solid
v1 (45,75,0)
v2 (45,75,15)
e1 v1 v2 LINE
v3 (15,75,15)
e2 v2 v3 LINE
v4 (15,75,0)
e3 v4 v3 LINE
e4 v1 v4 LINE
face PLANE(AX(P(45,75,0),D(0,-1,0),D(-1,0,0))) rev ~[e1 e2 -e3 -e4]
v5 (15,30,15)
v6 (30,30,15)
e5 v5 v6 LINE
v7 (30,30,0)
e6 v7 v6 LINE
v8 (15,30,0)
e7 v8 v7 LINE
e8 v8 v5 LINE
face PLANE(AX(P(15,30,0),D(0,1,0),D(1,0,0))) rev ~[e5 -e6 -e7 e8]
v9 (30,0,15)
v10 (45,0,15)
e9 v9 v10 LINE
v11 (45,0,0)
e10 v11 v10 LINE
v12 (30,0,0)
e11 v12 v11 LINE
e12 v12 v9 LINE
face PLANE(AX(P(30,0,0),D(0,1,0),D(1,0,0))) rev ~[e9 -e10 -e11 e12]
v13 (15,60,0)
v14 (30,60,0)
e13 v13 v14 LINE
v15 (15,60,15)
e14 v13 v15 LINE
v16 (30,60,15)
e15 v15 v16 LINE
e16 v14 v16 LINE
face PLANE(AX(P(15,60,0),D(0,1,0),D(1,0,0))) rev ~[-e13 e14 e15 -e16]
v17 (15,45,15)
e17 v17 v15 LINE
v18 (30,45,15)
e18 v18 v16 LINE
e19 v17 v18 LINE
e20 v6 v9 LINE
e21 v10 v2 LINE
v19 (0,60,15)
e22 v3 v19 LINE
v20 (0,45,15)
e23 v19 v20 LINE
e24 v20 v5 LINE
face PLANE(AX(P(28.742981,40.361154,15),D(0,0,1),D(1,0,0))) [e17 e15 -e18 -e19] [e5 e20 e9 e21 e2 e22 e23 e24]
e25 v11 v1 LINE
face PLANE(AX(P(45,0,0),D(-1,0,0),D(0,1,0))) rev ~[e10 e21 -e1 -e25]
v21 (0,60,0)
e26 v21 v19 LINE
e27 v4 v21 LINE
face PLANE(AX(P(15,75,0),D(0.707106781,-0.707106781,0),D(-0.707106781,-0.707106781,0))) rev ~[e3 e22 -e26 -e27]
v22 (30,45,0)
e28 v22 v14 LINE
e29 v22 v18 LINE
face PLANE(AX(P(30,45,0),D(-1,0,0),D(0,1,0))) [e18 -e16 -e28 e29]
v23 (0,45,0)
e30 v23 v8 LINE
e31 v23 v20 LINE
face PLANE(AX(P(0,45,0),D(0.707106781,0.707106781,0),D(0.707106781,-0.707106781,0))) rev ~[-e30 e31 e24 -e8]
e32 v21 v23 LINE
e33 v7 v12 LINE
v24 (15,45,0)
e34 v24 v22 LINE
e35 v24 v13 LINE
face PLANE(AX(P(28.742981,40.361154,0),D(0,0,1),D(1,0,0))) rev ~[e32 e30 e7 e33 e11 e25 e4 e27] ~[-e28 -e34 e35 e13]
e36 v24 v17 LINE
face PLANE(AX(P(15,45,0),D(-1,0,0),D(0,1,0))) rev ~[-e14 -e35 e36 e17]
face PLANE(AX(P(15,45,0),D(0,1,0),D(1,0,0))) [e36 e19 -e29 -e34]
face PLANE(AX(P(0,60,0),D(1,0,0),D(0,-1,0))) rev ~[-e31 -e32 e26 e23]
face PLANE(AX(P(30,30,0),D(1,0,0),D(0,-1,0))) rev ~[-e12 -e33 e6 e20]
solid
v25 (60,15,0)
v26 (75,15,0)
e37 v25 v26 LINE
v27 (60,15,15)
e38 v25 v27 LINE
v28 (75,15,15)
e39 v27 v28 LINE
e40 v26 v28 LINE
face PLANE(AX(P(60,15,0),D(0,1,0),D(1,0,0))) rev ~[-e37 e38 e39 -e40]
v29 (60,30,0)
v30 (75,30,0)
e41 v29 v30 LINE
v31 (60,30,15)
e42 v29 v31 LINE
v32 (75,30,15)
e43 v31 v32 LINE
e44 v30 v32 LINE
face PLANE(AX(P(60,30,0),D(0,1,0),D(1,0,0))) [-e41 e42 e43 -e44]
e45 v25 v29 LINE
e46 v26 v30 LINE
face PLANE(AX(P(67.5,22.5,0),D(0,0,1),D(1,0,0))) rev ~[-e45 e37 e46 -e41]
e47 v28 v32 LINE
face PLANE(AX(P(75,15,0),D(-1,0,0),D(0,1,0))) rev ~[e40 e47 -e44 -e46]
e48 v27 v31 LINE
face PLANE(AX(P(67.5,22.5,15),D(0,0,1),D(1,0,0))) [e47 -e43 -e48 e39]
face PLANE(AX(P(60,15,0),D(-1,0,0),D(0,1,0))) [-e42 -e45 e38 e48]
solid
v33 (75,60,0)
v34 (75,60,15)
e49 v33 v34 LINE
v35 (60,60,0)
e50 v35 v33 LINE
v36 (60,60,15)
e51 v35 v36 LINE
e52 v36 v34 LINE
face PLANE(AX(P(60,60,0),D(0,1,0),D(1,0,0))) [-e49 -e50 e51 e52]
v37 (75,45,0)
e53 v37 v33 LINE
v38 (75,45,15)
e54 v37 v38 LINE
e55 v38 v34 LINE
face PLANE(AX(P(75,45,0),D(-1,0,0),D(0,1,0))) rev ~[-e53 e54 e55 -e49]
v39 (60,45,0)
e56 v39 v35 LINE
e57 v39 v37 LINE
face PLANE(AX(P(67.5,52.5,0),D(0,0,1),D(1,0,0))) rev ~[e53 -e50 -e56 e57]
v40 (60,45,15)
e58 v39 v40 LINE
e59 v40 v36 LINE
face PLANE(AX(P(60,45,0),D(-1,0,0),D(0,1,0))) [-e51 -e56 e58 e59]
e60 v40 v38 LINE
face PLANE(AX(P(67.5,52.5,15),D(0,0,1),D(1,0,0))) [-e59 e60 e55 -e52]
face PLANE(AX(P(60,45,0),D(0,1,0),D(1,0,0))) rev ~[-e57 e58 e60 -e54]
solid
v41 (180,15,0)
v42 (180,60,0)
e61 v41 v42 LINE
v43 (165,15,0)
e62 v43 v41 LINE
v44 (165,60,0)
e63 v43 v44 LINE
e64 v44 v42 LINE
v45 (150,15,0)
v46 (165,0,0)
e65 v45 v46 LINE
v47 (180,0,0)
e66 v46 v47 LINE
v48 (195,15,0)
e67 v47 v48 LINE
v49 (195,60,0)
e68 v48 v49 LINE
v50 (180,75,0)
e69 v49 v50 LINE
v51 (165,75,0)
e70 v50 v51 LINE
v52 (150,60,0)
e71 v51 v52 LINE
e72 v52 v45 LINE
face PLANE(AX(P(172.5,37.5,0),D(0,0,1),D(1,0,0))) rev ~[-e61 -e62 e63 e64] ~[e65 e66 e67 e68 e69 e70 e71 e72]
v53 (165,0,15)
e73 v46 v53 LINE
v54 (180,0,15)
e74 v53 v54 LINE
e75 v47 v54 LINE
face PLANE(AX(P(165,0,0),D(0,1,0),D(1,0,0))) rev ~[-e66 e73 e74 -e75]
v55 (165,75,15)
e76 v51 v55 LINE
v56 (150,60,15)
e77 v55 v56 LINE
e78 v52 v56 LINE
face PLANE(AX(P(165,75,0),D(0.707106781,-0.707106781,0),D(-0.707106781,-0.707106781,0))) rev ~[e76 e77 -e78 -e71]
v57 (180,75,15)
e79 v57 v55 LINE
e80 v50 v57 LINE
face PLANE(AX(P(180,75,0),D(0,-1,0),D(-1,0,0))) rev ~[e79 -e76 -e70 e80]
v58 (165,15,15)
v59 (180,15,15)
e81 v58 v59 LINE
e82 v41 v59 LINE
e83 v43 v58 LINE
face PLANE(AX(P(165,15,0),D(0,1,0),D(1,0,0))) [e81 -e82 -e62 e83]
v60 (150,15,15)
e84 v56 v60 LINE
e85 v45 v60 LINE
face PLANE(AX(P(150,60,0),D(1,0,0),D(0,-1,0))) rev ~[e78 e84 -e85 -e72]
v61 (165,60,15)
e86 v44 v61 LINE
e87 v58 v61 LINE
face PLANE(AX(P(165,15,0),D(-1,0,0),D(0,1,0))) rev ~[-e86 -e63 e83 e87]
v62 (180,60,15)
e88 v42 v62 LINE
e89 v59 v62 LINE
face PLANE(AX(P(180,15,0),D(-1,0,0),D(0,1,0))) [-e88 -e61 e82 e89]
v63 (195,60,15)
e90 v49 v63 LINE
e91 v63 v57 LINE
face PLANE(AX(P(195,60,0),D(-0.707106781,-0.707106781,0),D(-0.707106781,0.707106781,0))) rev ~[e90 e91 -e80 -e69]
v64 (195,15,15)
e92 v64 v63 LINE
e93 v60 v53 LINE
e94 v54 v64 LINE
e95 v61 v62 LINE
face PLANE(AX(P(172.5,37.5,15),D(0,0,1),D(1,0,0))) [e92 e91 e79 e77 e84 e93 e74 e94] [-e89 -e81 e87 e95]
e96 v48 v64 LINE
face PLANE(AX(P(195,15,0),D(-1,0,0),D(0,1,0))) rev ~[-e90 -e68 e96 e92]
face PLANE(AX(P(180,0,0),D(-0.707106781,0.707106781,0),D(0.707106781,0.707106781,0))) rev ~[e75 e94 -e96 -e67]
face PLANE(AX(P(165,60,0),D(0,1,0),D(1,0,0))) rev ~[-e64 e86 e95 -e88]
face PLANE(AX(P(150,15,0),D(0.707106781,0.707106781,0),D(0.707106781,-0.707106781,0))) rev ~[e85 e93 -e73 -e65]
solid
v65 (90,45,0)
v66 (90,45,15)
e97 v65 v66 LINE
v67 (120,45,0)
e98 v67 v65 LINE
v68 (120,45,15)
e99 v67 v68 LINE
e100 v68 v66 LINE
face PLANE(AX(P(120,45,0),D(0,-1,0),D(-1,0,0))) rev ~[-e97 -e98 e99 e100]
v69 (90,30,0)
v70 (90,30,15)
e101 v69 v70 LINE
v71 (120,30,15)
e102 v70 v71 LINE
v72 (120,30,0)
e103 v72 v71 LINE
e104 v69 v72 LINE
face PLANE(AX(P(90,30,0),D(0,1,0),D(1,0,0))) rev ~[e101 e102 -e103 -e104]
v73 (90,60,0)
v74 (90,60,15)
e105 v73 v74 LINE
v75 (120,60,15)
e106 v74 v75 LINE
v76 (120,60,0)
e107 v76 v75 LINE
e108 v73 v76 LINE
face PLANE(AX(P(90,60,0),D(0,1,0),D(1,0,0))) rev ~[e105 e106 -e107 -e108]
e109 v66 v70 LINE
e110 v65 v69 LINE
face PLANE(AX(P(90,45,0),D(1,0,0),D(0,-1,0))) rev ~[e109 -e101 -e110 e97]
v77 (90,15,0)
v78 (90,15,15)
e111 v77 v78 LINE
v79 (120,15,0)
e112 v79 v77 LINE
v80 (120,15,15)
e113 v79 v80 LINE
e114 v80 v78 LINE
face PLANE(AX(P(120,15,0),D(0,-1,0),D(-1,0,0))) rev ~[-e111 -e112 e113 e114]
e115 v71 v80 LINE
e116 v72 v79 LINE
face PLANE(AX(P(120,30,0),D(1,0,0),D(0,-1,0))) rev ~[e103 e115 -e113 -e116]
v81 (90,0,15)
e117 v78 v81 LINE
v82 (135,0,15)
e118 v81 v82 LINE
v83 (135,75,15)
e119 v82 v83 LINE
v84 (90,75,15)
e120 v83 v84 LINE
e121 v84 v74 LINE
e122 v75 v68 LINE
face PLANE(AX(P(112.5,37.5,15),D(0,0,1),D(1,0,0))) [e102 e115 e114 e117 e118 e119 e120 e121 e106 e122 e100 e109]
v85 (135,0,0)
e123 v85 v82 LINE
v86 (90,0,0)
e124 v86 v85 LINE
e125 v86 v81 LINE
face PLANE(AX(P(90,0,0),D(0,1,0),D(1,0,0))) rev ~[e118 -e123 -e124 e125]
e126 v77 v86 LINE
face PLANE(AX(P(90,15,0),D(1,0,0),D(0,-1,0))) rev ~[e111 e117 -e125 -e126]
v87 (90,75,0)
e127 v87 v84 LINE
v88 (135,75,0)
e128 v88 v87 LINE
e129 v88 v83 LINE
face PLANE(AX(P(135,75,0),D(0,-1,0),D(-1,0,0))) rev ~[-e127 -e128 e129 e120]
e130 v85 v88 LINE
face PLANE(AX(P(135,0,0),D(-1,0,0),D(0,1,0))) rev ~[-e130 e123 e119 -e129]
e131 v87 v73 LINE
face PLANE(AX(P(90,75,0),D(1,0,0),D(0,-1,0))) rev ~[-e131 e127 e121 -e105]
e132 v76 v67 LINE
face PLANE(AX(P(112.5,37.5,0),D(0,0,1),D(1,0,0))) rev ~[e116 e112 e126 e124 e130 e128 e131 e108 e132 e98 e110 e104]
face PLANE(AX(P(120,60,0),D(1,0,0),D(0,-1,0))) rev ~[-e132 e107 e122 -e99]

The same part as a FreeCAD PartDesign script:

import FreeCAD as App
import Part
import Sketcher

V = App.Vector
Q = App.Units.Quantity


def add_polygon(sketch, points):
    """Adds a closed chain of lines whose ends are joined by coincident constraints."""
    first, n = sketch.GeometryCount, len(points)
    for a, b in zip(points, points[1:] + points[:1]):
        sketch.addGeometry(Part.LineSegment(App.Vector(*a, 0), App.Vector(*b, 0)), False)
    for i in range(n):
        sketch.addConstraint(Sketcher.Constraint("Coincident", first + i, 2, first + (i + 1) % n, 1))

doc = App.newDocument("Part")
body = doc.addObject("PartDesign::Body", "Body")

sketch1 = doc.addObject("Sketcher::SketchObject", "Sketch")
body.addObject(sketch1)
sketch1.AttachmentSupport = (doc.XY_Plane, [""])
sketch1.MapMode = "FlatFace"
add_polygon(sketch1, [(30, 0), (45, 0), (45, 75), (15, 75), (0, 60), (0, 45), (15, 30), (30, 30)])
add_polygon(sketch1, [(30, 45), (15, 45), (15, 60), (30, 60)])
sketch1.addConstraint([
    Sketcher.Constraint("Horizontal", 0),
    Sketcher.Constraint("Vertical", 1),
    Sketcher.Constraint("Horizontal", 2),
    Sketcher.Constraint("Vertical", 4),
    Sketcher.Constraint("Horizontal", 6),
    Sketcher.Constraint("Vertical", 7),
    Sketcher.Constraint("Horizontal", 8),
    Sketcher.Constraint("Vertical", 9),
    Sketcher.Constraint("Horizontal", 10),
    Sketcher.Constraint("Vertical", 11),
    Sketcher.Constraint("PointOnObject", 0, 2, -1),
    Sketcher.Constraint("PointOnObject", 3, 2, -2),
    Sketcher.Constraint("Perpendicular", 3, 5),
    Sketcher.Constraint("Horizontal", 4, 2, 8, 2),
    Sketcher.Constraint("Horizontal", 3, 2, 9, 2),
    Sketcher.Constraint("Vertical", 2, 2, 5, 2),
    Sketcher.Constraint("Vertical", 5, 2, 8, 2),
    Sketcher.Constraint("Vertical", 7, 2, 10, 2),
    Sketcher.Constraint("Equal", 0, 6),
    Sketcher.Constraint("Equal", 10, 4),
    Sketcher.Constraint("Equal", 2, 7),
    Sketcher.Constraint("Equal", 3, 5),
    Sketcher.Constraint("DistanceX", 0, 1, 0, 2, Q("15 mm")),
    Sketcher.Constraint("DistanceY", 1, 1, 1, 2, Q("75 mm")),
])
pad1 = doc.addObject("PartDesign::Pad", "Pad")
body.addObject(pad1)
pad1.Profile = sketch1
pad1.Length = 15
body2 = doc.addObject("PartDesign::Body", "Body001")

sketch2 = doc.addObject("Sketcher::SketchObject", "Sketch001")
body2.addObject(sketch2)
sketch2.AttachmentSupport = (doc.getObject("XY_Plane001"), [""])
sketch2.MapMode = "FlatFace"
add_polygon(sketch2, [(90, 0), (135, 0), (135, 75), (90, 75), (90, 60), (120, 60), (120, 45), (90, 45), (90, 30), (120, 30), (120, 15), (90, 15)])
sketch2.addConstraint([
    Sketcher.Constraint("Horizontal", 0),
    Sketcher.Constraint("Vertical", 1),
    Sketcher.Constraint("Horizontal", 2),
    Sketcher.Constraint("Vertical", 3),
    Sketcher.Constraint("Horizontal", 4),
    Sketcher.Constraint("Vertical", 5),
    Sketcher.Constraint("Horizontal", 6),
    Sketcher.Constraint("Vertical", 7),
    Sketcher.Constraint("Horizontal", 8),
    Sketcher.Constraint("Vertical", 9),
    Sketcher.Constraint("Horizontal", 10),
    Sketcher.Constraint("Vertical", 11),
    Sketcher.Constraint("PointOnObject", 0, 2, -1),
    Sketcher.Constraint("Vertical", 3, 2, 6, 2),
    Sketcher.Constraint("Vertical", 5, 2, 8, 2),
    Sketcher.Constraint("Vertical", 7, 2, 10, 2),
    Sketcher.Constraint("Equal", 3, 5),
    Sketcher.Constraint("Equal", 5, 7),
    Sketcher.Constraint("Equal", 7, 9),
    Sketcher.Constraint("Equal", 9, 11),
    Sketcher.Constraint("DistanceX", 0, 1, 0, 2, Q("45 mm")),
    Sketcher.Constraint("DistanceX", 4, 1, 4, 2, Q("30 mm")),
    Sketcher.Constraint("DistanceY", 1, 1, 1, 2, Q("75 mm")),
    Sketcher.Constraint("DistanceX", -1, 1, 0, 2, Q("135 mm")),
])
pad2 = doc.addObject("PartDesign::Pad", "Pad001")
body2.addObject(pad2)
pad2.Profile = sketch2
pad2.Length = 15
body3 = doc.addObject("PartDesign::Body", "Body002")

sketch3 = doc.addObject("Sketcher::SketchObject", "Sketch002")
body3.addObject(sketch3)
sketch3.AttachmentSupport = (doc.getObject("XY_Plane002"), [""])
sketch3.MapMode = "FlatFace"
add_polygon(sketch3, [(195, 15), (195, 60), (180, 75), (165, 75), (150, 60), (150, 15), (165, 0), (180, 0)])
add_polygon(sketch3, [(180, 15), (165, 15), (165, 60), (180, 60)])
sketch3.addConstraint([
    Sketcher.Constraint("Vertical", 0),
    Sketcher.Constraint("Horizontal", 2),
    Sketcher.Constraint("Vertical", 4),
    Sketcher.Constraint("Horizontal", 6),
    Sketcher.Constraint("Horizontal", 8),
    Sketcher.Constraint("Vertical", 9),
    Sketcher.Constraint("Horizontal", 10),
    Sketcher.Constraint("Vertical", 11),
    Sketcher.Constraint("PointOnObject", 5, 2, -1),
    Sketcher.Constraint("Perpendicular", 1, 3),
    Sketcher.Constraint("Perpendicular", 3, 5),
    Sketcher.Constraint("Perpendicular", 5, 7),
    Sketcher.Constraint("Horizontal", 0, 2, 3, 2),
    Sketcher.Constraint("Horizontal", 4, 2, 7, 2),
    Sketcher.Constraint("Horizontal", 7, 2, 8, 2),
    Sketcher.Constraint("Horizontal", 3, 2, 9, 2),
    Sketcher.Constraint("Vertical", 2, 2, 5, 2),
    Sketcher.Constraint("Vertical", 1, 2, 6, 2),
    Sketcher.Constraint("Vertical", 5, 2, 8, 2),
    Sketcher.Constraint("Vertical", 6, 2, 10, 2),
    Sketcher.Constraint("DistanceX", 2, 2, 2, 1, Q("15 mm")),
    Sketcher.Constraint("DistanceY", 0, 1, 0, 2, Q("45 mm")),
    Sketcher.Constraint("DistanceX", -1, 1, 0, 2, Q("195 mm")),
    Sketcher.Constraint("DistanceY", -1, 1, 0, 2, Q("60 mm")),
])
pad3 = doc.addObject("PartDesign::Pad", "Pad002")
body3.addObject(pad3)
pad3.Profile = sketch3
pad3.Length = 15
body4 = doc.addObject("PartDesign::Body", "Body003")

sketch4 = doc.addObject("Sketcher::SketchObject", "Sketch003")
body4.addObject(sketch4)
sketch4.AttachmentSupport = (doc.getObject("XY_Plane003"), [""])
sketch4.MapMode = "FlatFace"
add_polygon(sketch4, [(60, 30), (60, 15), (75, 15), (75, 30)])
sketch4.addConstraint([
    Sketcher.Constraint("Vertical", 0),
    Sketcher.Constraint("Horizontal", 1),
    Sketcher.Constraint("Vertical", 2),
    Sketcher.Constraint("Horizontal", 3),
    Sketcher.Constraint("Equal", 3, 0),
    Sketcher.Constraint("DistanceX", 1, 1, 1, 2, Q("15 mm")),
    Sketcher.Constraint("DistanceX", -1, 1, 0, 2, Q("60 mm")),
    Sketcher.Constraint("DistanceY", -1, 1, 0, 2, Q("15 mm")),
])
pad4 = doc.addObject("PartDesign::Pad", "Pad003")
body4.addObject(pad4)
pad4.Profile = sketch4
pad4.Length = 15
body5 = doc.addObject("PartDesign::Body", "Body004")

sketch5 = doc.addObject("Sketcher::SketchObject", "Sketch004")
body5.addObject(sketch5)
sketch5.AttachmentSupport = (doc.getObject("XY_Plane004"), [""])
sketch5.MapMode = "FlatFace"
add_polygon(sketch5, [(60, 60), (60, 45), (75, 45), (75, 60)])
sketch5.addConstraint([
    Sketcher.Constraint("Vertical", 0),
    Sketcher.Constraint("Horizontal", 1),
    Sketcher.Constraint("Vertical", 2),
    Sketcher.Constraint("Horizontal", 3),
    Sketcher.Constraint("Equal", 3, 0),
    Sketcher.Constraint("DistanceX", 1, 1, 1, 2, Q("15 mm")),
    Sketcher.Constraint("DistanceX", -1, 1, 0, 2, Q("60 mm")),
    Sketcher.Constraint("DistanceY", -1, 1, 0, 2, Q("45 mm")),
])
pad5 = doc.addObject("PartDesign::Pad", "Pad004")
body5.addObject(pad5)
pad5.Profile = sketch5
pad5.Length = 15

doc.recompute()
